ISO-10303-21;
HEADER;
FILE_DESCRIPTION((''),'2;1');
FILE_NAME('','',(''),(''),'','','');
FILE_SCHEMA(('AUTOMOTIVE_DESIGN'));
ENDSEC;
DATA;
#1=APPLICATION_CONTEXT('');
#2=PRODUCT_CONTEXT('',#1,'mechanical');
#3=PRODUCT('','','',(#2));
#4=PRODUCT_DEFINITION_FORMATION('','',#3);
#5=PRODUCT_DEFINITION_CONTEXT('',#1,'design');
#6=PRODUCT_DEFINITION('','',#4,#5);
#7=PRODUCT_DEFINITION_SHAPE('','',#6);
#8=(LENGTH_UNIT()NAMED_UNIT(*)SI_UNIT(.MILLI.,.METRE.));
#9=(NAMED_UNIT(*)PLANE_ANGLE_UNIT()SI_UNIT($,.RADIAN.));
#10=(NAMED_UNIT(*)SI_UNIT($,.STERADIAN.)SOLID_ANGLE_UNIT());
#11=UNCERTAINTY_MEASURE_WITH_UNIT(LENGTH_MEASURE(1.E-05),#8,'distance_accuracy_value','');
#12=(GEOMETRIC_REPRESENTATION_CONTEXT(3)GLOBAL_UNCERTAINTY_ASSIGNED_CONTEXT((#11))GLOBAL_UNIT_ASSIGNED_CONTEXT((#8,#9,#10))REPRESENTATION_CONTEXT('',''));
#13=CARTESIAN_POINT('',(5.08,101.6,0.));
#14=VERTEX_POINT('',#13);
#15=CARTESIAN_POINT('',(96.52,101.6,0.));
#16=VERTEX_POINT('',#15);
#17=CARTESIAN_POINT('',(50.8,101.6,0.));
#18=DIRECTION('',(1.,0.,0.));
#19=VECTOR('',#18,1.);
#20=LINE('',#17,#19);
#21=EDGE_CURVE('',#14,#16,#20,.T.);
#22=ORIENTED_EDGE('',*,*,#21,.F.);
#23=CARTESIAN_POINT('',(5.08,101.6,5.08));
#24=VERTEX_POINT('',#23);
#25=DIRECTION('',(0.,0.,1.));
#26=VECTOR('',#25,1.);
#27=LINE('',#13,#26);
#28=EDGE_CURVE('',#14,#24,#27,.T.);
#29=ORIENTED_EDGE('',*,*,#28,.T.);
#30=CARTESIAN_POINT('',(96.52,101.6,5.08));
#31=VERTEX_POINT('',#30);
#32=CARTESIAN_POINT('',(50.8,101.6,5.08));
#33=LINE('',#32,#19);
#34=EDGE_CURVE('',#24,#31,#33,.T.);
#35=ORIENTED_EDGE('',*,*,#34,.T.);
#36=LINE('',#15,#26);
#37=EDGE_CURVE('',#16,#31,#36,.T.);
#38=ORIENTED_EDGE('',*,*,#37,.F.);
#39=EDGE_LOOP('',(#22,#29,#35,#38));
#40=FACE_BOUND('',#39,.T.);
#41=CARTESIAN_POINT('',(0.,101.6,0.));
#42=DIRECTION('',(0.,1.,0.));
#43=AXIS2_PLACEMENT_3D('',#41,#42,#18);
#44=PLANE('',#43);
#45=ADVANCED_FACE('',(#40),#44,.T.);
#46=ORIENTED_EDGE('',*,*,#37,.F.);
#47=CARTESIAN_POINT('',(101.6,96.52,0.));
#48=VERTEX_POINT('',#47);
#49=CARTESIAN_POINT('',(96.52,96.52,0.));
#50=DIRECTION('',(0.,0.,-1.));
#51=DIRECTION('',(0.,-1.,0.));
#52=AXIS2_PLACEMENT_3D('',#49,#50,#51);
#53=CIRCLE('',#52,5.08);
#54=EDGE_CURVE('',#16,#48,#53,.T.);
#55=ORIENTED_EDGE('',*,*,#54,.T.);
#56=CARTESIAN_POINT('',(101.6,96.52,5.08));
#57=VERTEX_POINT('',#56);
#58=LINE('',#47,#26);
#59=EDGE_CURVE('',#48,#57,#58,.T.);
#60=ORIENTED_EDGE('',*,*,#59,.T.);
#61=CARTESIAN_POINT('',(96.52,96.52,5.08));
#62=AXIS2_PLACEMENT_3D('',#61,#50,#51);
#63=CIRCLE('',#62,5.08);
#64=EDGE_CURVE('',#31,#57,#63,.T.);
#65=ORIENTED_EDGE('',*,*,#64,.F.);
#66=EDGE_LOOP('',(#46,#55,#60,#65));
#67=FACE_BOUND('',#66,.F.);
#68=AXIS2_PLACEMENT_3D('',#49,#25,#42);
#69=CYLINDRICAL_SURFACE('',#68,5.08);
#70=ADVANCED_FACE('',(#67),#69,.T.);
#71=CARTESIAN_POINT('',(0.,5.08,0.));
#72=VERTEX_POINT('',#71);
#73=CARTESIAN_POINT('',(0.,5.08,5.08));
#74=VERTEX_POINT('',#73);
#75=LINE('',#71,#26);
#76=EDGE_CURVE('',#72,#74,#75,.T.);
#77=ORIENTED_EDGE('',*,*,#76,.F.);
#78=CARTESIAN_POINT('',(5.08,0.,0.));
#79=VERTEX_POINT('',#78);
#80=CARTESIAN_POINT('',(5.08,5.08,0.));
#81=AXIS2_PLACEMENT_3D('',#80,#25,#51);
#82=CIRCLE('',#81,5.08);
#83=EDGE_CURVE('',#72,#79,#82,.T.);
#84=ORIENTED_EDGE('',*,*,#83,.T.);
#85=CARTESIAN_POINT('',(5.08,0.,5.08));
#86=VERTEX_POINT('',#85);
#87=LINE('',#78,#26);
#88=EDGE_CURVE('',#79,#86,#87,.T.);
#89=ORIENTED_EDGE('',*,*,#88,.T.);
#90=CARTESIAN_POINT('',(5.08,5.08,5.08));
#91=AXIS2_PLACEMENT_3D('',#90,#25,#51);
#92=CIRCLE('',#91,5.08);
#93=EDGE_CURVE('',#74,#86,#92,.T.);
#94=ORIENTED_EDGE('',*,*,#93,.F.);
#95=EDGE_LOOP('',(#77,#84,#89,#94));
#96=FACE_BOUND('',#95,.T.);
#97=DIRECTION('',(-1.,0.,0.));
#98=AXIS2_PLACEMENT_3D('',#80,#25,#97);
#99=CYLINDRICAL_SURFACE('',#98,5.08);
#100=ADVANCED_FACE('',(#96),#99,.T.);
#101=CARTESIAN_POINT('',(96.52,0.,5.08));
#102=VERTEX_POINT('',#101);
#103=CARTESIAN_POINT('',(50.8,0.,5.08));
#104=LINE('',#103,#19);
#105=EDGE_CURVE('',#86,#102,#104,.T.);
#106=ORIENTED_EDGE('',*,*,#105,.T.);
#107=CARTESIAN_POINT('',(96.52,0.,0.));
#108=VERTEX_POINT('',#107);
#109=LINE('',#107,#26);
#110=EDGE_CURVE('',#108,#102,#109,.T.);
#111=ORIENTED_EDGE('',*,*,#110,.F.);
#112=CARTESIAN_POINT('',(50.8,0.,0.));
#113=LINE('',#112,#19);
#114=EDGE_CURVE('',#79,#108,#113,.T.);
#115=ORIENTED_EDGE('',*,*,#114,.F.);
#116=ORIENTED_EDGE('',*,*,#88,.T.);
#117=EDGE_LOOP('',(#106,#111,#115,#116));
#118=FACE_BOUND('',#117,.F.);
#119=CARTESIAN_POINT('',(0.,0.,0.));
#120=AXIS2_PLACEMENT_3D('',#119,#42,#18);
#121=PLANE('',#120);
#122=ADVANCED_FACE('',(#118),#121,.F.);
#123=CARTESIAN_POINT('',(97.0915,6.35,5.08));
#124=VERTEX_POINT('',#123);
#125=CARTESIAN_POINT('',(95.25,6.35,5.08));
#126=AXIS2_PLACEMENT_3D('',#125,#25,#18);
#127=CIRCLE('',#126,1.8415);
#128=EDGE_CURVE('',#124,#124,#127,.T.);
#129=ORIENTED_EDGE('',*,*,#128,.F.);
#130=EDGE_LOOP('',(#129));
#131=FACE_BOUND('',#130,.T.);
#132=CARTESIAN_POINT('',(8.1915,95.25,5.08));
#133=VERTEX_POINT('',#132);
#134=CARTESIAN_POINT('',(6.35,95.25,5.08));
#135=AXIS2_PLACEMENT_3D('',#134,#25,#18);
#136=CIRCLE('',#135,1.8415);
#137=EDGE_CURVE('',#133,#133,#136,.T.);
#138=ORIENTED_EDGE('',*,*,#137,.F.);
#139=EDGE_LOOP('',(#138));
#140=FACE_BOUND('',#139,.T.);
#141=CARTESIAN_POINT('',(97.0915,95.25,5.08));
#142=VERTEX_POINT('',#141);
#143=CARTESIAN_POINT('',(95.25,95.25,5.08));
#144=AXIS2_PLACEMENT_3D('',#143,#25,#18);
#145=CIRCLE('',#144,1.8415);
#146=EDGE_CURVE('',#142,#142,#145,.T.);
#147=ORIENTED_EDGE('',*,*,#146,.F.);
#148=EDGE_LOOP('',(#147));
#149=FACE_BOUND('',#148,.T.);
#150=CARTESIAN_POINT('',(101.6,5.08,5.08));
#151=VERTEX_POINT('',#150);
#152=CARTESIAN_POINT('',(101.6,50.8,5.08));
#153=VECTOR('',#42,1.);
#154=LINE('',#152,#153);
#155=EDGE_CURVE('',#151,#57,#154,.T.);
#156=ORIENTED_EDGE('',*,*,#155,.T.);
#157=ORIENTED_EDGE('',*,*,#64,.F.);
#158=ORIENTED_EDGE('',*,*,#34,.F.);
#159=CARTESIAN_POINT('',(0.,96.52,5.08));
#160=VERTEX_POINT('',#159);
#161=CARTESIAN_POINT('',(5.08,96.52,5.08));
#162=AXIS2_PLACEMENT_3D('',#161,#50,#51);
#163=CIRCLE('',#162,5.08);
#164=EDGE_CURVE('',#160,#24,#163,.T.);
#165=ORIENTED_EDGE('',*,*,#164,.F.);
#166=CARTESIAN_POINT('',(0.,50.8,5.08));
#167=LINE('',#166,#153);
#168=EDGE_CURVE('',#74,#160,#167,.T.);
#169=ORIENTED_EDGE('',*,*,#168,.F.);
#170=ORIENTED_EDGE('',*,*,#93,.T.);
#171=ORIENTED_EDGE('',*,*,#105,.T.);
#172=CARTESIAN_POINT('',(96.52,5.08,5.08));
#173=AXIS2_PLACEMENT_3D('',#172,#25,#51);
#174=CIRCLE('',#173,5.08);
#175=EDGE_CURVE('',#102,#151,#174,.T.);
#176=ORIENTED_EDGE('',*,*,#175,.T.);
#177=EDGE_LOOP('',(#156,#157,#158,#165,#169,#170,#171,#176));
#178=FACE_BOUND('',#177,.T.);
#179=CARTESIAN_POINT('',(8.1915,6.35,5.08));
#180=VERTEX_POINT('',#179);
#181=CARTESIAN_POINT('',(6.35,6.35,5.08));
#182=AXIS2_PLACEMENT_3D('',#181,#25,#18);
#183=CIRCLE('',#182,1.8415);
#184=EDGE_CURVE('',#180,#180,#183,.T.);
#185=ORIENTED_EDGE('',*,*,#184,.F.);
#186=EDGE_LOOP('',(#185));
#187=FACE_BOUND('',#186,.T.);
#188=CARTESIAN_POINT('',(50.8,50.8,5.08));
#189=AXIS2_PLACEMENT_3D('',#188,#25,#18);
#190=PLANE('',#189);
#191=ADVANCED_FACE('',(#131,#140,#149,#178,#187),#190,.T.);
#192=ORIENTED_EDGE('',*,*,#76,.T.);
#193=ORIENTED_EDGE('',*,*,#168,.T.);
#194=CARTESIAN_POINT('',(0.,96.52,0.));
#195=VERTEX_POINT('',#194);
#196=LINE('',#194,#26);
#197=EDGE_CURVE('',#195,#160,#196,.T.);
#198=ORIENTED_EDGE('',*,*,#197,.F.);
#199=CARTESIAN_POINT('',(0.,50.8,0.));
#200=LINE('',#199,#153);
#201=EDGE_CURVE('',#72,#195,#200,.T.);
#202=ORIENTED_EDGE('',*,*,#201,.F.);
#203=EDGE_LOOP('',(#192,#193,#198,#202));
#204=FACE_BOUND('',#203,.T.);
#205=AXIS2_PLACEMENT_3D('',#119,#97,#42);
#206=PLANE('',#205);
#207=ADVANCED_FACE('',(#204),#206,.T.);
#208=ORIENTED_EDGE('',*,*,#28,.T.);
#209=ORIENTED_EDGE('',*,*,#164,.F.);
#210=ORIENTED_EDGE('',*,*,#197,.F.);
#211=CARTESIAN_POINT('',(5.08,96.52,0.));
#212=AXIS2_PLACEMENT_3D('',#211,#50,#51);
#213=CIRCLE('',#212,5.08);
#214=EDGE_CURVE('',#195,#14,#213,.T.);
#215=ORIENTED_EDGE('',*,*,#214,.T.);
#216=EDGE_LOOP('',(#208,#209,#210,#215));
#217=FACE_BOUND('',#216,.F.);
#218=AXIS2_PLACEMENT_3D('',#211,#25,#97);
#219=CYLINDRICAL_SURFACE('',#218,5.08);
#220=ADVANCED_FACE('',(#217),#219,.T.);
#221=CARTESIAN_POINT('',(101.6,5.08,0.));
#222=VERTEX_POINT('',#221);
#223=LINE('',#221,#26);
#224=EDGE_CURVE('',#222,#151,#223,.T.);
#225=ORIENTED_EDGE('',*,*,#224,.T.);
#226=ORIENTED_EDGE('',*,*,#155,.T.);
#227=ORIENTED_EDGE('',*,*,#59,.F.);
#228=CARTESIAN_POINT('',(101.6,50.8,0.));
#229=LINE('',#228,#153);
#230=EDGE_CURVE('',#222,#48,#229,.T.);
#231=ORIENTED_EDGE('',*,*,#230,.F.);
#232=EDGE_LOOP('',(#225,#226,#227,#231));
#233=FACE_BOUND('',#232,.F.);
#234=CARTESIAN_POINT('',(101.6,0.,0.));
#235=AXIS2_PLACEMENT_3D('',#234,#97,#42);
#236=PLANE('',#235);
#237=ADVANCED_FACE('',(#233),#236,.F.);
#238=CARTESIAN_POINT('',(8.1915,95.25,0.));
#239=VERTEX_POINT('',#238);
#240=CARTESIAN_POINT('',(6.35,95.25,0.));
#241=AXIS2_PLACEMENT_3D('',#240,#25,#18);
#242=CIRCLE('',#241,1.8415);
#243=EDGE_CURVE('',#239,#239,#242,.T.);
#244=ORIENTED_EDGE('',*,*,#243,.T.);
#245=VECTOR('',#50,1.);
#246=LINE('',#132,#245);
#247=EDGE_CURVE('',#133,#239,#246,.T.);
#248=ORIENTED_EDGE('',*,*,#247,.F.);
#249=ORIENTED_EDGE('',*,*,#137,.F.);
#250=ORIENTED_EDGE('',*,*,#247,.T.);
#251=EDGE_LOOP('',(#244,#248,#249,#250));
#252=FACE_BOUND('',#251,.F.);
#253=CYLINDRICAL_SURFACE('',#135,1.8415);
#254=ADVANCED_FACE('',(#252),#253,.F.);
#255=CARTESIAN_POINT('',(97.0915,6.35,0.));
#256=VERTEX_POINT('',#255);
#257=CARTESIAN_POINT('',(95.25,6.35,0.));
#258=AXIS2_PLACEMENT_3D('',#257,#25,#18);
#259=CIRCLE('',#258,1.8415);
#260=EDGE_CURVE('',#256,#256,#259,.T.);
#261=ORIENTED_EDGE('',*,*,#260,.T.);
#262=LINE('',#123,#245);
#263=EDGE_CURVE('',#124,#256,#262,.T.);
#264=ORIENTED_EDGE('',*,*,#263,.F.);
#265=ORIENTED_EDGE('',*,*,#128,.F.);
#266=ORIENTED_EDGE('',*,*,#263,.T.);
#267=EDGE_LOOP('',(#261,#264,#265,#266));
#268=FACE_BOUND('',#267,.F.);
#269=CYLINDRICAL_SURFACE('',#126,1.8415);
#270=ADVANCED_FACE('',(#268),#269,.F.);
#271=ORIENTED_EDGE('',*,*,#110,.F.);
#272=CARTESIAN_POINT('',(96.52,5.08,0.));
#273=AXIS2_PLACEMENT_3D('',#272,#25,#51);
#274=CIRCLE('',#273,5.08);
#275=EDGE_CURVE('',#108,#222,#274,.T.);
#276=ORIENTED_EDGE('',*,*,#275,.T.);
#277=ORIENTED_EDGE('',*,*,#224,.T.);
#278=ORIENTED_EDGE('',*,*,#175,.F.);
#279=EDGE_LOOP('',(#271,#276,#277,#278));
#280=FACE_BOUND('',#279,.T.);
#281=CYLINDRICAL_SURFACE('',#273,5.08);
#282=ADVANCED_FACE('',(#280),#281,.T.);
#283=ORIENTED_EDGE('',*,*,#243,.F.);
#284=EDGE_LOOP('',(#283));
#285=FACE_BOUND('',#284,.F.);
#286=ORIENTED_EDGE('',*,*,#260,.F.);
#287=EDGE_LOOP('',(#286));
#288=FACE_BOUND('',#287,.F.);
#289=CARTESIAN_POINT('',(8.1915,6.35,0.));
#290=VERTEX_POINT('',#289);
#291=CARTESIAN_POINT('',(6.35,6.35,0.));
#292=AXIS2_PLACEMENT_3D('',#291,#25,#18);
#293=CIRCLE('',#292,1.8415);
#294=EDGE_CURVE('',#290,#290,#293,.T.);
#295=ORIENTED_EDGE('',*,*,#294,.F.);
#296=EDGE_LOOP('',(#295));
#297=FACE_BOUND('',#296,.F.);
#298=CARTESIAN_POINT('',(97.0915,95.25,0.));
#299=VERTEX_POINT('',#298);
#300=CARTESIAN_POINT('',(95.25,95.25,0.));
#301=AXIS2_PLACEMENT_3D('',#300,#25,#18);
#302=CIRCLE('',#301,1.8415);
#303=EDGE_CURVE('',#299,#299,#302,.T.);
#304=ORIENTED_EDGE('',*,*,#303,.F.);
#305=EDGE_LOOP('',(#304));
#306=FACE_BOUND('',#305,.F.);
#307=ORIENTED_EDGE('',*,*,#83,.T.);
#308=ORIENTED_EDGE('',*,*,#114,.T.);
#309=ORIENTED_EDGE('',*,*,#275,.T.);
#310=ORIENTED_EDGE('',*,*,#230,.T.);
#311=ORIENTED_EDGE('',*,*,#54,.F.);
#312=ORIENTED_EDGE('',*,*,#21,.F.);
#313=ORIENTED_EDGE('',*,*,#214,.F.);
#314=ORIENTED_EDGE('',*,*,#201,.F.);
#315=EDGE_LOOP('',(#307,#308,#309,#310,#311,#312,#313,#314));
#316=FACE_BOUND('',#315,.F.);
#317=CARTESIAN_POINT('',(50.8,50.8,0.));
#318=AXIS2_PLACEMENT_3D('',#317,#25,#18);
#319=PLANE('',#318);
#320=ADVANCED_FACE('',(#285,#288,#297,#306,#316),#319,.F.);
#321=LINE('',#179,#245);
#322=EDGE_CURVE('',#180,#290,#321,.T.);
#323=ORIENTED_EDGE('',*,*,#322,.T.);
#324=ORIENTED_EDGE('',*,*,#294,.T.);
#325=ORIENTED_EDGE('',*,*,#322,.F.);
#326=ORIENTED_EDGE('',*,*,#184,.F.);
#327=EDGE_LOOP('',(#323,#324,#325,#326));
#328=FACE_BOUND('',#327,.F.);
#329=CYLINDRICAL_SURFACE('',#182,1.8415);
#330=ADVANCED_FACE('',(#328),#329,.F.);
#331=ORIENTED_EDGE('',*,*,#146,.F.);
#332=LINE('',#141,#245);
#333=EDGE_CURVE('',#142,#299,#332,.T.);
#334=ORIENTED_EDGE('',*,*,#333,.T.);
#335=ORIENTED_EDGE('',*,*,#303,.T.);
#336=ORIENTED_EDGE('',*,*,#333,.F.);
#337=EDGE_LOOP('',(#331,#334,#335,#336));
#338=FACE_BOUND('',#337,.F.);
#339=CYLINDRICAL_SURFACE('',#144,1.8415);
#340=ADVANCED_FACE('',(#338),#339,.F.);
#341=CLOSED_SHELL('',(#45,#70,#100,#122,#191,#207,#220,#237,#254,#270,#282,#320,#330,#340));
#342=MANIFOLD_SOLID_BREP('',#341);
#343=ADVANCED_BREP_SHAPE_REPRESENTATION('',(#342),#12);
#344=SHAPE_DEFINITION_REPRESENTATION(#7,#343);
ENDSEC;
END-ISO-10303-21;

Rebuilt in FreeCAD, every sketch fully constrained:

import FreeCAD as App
import Part
import Sketcher
Q = App.Units.Quantity


def edges_at(feature, points):
    """Names of the edges that pass closest to the given points."""
    edges = feature.Shape.Edges
    near = lambda p: min(range(len(edges)), key=lambda i: edges[i].distToShape(Part.Vertex(*p))[0])
    return sorted({f"Edge{near(p) + 1}" for p in points})


def add_polygon(sketch, points):
    """Adds a closed chain of lines whose ends are joined by coincident constraints."""
    first, n = sketch.GeometryCount, len(points)
    for a, b in zip(points, points[1:] + points[:1]):
        sketch.addGeometry(Part.LineSegment(App.Vector(*a, 0), App.Vector(*b, 0)), False)
    for i in range(n):
        sketch.addConstraint(Sketcher.Constraint("Coincident", first + i, 2, first + (i + 1) % n, 1))

doc = App.newDocument("Part")
params = doc.addObject("Spreadsheet::Sheet", "Params")
for row, (alias, value) in enumerate([
    ("sketch1_width", "4 in"),
    ("pad1_length", "0.2 in"),
    ("sketch2_diameter", "0.145 in"),
    ("fillet_radius", "0.2 in"),
], start=1):
    params.set(f"A{row}", alias)
    params.set(f"B{row}", "=" + value)
    params.setAlias(f"B{row}", alias)

body = doc.addObject("PartDesign::Body", "Body")

sketch1 = body.newObject("Sketcher::SketchObject", "Sketch")
sketch1.AttachmentSupport = (doc.getObject("XY_Plane"), [""])
sketch1.MapMode = "FlatFace"
add_polygon(sketch1, [(0, 102), (0, 0), (102, 0), (102, 102)])
sketch1.addConstraint([
    Sketcher.Constraint("Vertical", 0),
    Sketcher.Constraint("Horizontal", 1),
    Sketcher.Constraint("Vertical", 2),
    Sketcher.Constraint("Horizontal", 3),
    Sketcher.Constraint("Coincident", 0, 2, -1, 1),
    Sketcher.Constraint("Equal", 3, 0),
    Sketcher.Constraint("DistanceX", 1, 1, 1, 2, Q("4 in")),
])
sketch1.setExpression("Constraints[10]", "Params.sketch1_width")
pad1 = body.newObject("PartDesign::Pad", "Pad")
pad1.Profile = sketch1
pad1.setExpression("Length", "Params.pad1_length")

sketch2 = body.newObject("Sketcher::SketchObject", "Sketch001")
sketch2.AttachmentSupport = (doc.getObject("XY_Plane"), [""])
sketch2.MapMode = "FlatFace"
sketch2.AttachmentOffset = App.Placement(App.Vector(0, 0, 0.2 * 25.4), App.Rotation())
sketch2.addGeometry([
    Part.Circle(App.Vector(6.3, 95.2, 0), App.Vector(0, 0, 1), 1.8),
    Part.Circle(App.Vector(95.2, 95.2, 0), App.Vector(0, 0, 1), 1.8),
    Part.Circle(App.Vector(95.2, 6.3, 0), App.Vector(0, 0, 1), 1.8),
    Part.Circle(App.Vector(6.3, 6.3, 0), App.Vector(0, 0, 1), 1.8),
], False)
sketch2.addConstraint([
    Sketcher.Constraint("Equal", 0, 1),
    Sketcher.Constraint("Equal", 1, 2),
    Sketcher.Constraint("Equal", 2, 3),
    Sketcher.Constraint("Horizontal", 0, 3, 1, 3),
    Sketcher.Constraint("Horizontal", 2, 3, 3, 3),
    Sketcher.Constraint("Vertical", 1, 3, 2, 3),
    Sketcher.Constraint("Vertical", 0, 3, 3, 3),
    Sketcher.Constraint("Diameter", 0, Q("0.145 in")),
    Sketcher.Constraint("DistanceX", 0, 3, 1, 3, Q("3.5 in")),
    Sketcher.Constraint("DistanceY", 2, 3, 1, 3, Q("3.5 in")),
    Sketcher.Constraint("DistanceX", -1, 1, 0, 3, Q("0.25 in")),
    Sketcher.Constraint("DistanceY", -1, 1, 0, 3, Q("3.75 in")),
])
sketch2.setExpression("Constraints[7]", "Params.sketch2_diameter")
pocket1 = body.newObject("PartDesign::Pocket", "Pocket")
pocket1.Profile = sketch2
pocket1.Type = "ThroughAll"
doc.recompute()

fillet = body.newObject("PartDesign::Fillet", "Fillet")
fillet.Base = (pocket1, edges_at(pocket1, [
    (0, 0, 2.54),
    (101.6, 0, 2.54),
    (101.6, 101.6, 2.54),
    (0, 101.6, 2.54),
]))
fillet.setExpression("Radius", "Params.fillet_radius")

doc.recompute()
